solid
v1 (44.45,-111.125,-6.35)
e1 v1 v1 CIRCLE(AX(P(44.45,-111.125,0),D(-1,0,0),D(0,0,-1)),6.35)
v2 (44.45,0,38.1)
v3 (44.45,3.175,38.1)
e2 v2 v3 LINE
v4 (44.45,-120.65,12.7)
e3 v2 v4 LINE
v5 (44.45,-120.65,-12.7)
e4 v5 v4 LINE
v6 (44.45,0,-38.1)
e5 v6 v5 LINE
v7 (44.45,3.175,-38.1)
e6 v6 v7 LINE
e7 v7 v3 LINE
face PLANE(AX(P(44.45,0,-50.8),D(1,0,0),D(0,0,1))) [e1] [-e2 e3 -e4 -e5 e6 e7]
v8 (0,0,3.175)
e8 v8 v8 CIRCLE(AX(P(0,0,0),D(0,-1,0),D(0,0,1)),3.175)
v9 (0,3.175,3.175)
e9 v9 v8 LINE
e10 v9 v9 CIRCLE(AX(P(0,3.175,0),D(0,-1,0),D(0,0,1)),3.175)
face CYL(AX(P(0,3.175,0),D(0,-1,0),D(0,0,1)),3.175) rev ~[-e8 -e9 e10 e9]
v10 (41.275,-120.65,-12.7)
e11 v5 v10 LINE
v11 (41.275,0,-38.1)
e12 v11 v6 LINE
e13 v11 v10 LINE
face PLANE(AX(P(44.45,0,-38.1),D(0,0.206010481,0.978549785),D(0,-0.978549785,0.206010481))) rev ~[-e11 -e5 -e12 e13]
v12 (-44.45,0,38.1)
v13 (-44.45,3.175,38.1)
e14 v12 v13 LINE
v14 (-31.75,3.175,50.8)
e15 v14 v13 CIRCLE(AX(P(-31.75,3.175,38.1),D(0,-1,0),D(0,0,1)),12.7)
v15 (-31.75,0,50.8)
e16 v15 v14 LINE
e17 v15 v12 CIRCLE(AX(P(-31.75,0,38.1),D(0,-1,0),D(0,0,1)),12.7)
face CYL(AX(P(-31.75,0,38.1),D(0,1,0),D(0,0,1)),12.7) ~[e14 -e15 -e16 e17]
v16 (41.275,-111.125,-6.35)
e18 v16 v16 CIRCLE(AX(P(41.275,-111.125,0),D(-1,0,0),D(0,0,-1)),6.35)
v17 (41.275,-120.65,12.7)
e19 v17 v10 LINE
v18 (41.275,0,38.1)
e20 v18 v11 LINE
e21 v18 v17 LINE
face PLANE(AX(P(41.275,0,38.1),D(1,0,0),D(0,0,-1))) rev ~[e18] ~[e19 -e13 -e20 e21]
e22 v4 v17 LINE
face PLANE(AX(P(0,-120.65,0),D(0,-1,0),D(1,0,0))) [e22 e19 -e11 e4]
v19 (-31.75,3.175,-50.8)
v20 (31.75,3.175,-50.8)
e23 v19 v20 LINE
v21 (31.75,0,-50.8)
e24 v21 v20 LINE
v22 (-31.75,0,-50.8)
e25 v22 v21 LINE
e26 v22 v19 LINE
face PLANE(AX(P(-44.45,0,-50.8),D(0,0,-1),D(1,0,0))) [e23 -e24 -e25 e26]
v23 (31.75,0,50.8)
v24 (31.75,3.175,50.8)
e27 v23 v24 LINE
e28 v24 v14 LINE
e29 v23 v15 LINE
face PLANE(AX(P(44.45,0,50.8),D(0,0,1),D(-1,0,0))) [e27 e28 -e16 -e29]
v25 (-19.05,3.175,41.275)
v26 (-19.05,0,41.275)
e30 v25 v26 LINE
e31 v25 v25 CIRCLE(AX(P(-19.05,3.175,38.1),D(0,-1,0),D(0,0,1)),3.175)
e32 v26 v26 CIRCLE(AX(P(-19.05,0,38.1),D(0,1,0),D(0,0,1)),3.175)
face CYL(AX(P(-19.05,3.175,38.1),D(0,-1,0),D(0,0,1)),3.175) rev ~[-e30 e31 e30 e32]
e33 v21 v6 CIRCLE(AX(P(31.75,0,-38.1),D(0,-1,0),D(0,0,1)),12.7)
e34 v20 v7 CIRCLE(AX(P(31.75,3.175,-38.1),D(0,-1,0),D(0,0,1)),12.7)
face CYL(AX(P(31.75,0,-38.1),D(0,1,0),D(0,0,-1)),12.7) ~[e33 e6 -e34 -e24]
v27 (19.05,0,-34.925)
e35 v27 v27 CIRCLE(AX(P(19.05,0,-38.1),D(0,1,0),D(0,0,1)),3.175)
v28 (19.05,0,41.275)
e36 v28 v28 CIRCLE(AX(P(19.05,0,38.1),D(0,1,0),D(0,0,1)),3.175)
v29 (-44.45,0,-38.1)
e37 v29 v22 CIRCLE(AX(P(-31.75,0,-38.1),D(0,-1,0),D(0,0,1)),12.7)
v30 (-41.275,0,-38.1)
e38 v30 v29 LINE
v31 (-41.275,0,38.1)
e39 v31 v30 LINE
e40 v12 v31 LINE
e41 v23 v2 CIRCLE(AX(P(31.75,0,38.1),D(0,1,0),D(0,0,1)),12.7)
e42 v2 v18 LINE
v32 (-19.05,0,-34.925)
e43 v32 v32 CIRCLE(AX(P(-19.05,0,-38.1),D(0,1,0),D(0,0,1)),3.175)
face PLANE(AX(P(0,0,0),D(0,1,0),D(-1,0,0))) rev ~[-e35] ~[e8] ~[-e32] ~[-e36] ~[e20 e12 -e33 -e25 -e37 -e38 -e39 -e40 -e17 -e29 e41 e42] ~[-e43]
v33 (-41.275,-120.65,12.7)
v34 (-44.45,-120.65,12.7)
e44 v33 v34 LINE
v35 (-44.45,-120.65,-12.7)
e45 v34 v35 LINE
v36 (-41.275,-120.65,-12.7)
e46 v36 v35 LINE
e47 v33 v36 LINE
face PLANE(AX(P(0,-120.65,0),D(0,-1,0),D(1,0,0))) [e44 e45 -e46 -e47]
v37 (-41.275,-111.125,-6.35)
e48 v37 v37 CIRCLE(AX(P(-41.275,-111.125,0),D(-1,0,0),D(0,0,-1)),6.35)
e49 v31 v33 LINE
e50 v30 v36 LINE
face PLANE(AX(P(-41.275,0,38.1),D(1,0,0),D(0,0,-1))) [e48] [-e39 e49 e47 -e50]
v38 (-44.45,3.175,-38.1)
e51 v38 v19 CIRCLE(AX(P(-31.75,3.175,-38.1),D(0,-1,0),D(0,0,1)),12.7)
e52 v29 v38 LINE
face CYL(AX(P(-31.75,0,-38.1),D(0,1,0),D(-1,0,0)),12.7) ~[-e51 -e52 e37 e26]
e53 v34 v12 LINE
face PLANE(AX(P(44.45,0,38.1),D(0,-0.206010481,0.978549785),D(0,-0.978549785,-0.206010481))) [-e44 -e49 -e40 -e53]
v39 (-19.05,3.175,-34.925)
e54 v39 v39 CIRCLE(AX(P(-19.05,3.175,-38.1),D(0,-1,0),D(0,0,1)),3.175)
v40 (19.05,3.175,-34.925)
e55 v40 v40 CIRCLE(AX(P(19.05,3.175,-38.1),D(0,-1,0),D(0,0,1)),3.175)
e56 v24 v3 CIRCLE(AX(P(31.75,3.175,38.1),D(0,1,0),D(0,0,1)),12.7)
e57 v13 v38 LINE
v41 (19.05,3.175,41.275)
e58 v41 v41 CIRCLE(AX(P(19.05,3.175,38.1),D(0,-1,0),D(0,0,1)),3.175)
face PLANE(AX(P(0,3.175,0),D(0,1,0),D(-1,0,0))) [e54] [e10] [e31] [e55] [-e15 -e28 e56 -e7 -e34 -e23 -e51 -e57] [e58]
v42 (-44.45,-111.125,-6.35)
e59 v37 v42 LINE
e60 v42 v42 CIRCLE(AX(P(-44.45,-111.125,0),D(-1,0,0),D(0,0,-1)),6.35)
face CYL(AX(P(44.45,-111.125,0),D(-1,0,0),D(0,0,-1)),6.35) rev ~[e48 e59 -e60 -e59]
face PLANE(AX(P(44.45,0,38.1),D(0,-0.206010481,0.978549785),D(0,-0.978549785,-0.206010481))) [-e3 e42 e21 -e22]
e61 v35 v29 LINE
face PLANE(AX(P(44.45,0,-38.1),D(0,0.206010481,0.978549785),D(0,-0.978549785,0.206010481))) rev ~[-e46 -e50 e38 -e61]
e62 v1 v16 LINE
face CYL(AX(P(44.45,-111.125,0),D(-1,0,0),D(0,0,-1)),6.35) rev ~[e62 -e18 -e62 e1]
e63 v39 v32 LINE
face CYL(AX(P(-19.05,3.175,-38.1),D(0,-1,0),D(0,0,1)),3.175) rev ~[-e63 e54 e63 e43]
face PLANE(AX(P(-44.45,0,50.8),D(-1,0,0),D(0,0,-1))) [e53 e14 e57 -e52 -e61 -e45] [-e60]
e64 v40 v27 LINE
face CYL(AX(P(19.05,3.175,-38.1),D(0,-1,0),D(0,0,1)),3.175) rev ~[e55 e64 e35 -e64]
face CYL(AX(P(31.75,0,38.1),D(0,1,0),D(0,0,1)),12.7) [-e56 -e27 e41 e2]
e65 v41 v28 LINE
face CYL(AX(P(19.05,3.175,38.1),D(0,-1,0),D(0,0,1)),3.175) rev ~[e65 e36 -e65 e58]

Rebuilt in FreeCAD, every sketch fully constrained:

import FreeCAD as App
import Part
import Sketcher
from FreeCAD import Vector
Q = App.Units.Quantity


def edges_at(feature, points):
    """Names of the edges that pass closest to the given points."""
    edges = feature.Shape.Edges
    near = lambda p: min(range(len(edges)), key=lambda i: edges[i].distToShape(Part.Vertex(*p))[0])
    return sorted({f"Edge{near(p) + 1}" for p in points})

doc = App.newDocument("Part")
body = doc.addObject("PartDesign::Body", "Body")

sketch1 = body.newObject("Sketcher::SketchObject", "Sketch")
sketch1.AttachmentSupport = (doc.getObject("XZ_Plane"), [""])
sketch1.MapMode = "FlatFace"
sketch1.addGeometry([
    Part.LineSegment(Vector(-44, 51, 0), Vector(44, 51, 0)),
    Part.LineSegment(Vector(44, 51, 0), Vector(44, -51, 0)),
    Part.LineSegment(Vector(44, -51, 0), Vector(-44, -51, 0)),
    Part.LineSegment(Vector(-44, -51, 0), Vector(-44, 51, 0)),
], False)
sketch1.addConstraint([
    Sketcher.Constraint("Coincident", 0, 2, 1, 1),
    Sketcher.Constraint("Coincident", 1, 2, 2, 1),
    Sketcher.Constraint("Coincident", 2, 2, 3, 1),
    Sketcher.Constraint("Coincident", 3, 2, 0, 1),
    Sketcher.Constraint("Horizontal", 0),
    Sketcher.Constraint("Vertical", 1),
    Sketcher.Constraint("Horizontal", 2),
    Sketcher.Constraint("Vertical", 3),
    Sketcher.Constraint("Symmetric", 0, 2, 2, 2, -1, 1),
    Sketcher.Constraint("DistanceY", -1, 1, 0, 2, Q("2 in")),
    Sketcher.Constraint("DistanceX", -1, 1, 0, 2, Q("1.75 in")),
])
pad1 = body.newObject("PartDesign::Pad", "Pad")
pad1.Profile = sketch1
pad1.Length = Q("0.125 in")
pad1.Reversed = True
doc.recompute()

fillet = body.newObject("PartDesign::Fillet", "Fillet")
fillet.Base = (pad1, edges_at(pad1, [
    (44.45, 1.587, 50.8),
    (-44.45, 1.587, 50.8),
    (44.45, 1.587, -50.8),
    (-44.45, 1.587, -50.8),
]))
fillet.Radius = Q("0.5 in")

sketch2 = body.newObject("Sketcher::SketchObject", "Sketch001")
sketch2.AttachmentSupport = (doc.getObject("XZ_Plane"), [""])
sketch2.MapMode = "FlatFace"
sketch2.AttachmentOffset = App.Placement(Vector(0, 0, -0.125 * 25.4), App.Rotation())
sketch2.addGeometry([
    Part.Circle(Vector(-19.1, -38.1, 0), Vector(0, 0, 1), 3.2),
    Part.Circle(Vector(19.1, -38.1, 0), Vector(0, 0, 1), 3.2),
    Part.Circle(Vector(19.1, 38.1, 0), Vector(0, 0, 1), 3.2),
    Part.Circle(Vector(-19.1, 38.1, 0), Vector(0, 0, 1), 3.2),
    Part.Circle(Vector(0, 0, 0), Vector(0, 0, 1), 3.2),
], False)
sketch2.addConstraint([
    Sketcher.Constraint("Coincident", 4, 3, -1, 1),
    Sketcher.Constraint("Equal", 0, 1),
    Sketcher.Constraint("Equal", 1, 2),
    Sketcher.Constraint("Equal", 2, 3),
    Sketcher.Constraint("Equal", 3, 4),
    Sketcher.Constraint("Symmetric", 0, 3, 2, 3, -1, 1),
    Sketcher.Constraint("Symmetric", 1, 3, 3, 3, -1, 1),
    Sketcher.Constraint("Symmetric", 0, 3, 1, 3, -2),
    Sketcher.Constraint("Diameter", 0, Q("0.25 in")),
    Sketcher.Constraint("DistanceY", 1, 3, 2, 3, Q("3 in")),
    Sketcher.Constraint("DistanceX", 0, 3, 1, 3, Q("1.5 in")),
])
doc.recompute()
hole = body.newObject("PartDesign::Hole", "Hole")
hole.Profile = sketch2
hole.ThreadType = "None"
hole.Diameter = Q("0.25 in")
hole.DepthType = "ThroughAll"
hole.Reversed = True

sketch3 = body.newObject("Sketcher::SketchObject", "Sketch002")
sketch3.AttachmentSupport = (doc.getObject("XZ_Plane"), [""])
sketch3.MapMode = "FlatFace"
sketch3.addGeometry([
    Part.LineSegment(Vector(41.3, -38.1, 0), Vector(44.5, -38.1, 0)),
    Part.LineSegment(Vector(44.5, -38.1, 0), Vector(44.5, 38.1, 0)),
    Part.LineSegment(Vector(44.5, 38.1, 0), Vector(41.3, 38.1, 0)),
    Part.LineSegment(Vector(41.3, 38.1, 0), Vector(41.3, -38.1, 0)),
    Part.LineSegment(Vector(-41.3, 38.1, 0), Vector(-44.5, 38.1, 0)),
    Part.LineSegment(Vector(-44.5, 38.1, 0), Vector(-44.5, -38.1, 0)),
    Part.LineSegment(Vector(-44.5, -38.1, 0), Vector(-41.3, -38.1, 0)),
    Part.LineSegment(Vector(-41.3, -38.1, 0), Vector(-41.3, 38.1, 0)),
], False)
sketch3.addConstraint([
    Sketcher.Constraint("Coincident", 0, 2, 1, 1),
    Sketcher.Constraint("Coincident", 1, 2, 2, 1),
    Sketcher.Constraint("Coincident", 2, 2, 3, 1),
    Sketcher.Constraint("Coincident", 3, 2, 0, 1),
    Sketcher.Constraint("Coincident", 4, 2, 5, 1),
    Sketcher.Constraint("Coincident", 5, 2, 6, 1),
    Sketcher.Constraint("Coincident", 6, 2, 7, 1),
    Sketcher.Constraint("Coincident", 7, 2, 4, 1),
    Sketcher.Constraint("Horizontal", 0),
    Sketcher.Constraint("Vertical", 1),
    Sketcher.Constraint("Horizontal", 2),
    Sketcher.Constraint("Vertical", 3),
    Sketcher.Constraint("Horizontal", 4),
    Sketcher.Constraint("Vertical", 5),
    Sketcher.Constraint("Horizontal", 6),
    Sketcher.Constraint("Vertical", 7),
    Sketcher.Constraint("Symmetric", 0, 2, 4, 2, -1, 1),
    Sketcher.Constraint("Symmetric", 2, 2, 6, 2, -1, 1),
    Sketcher.Constraint("Horizontal", 2, 2, 4, 2),
    Sketcher.Constraint("DistanceY", 1, 1, 1, 2, Q("3 in")),
    Sketcher.Constraint("DistanceX", 0, 1, 0, 2, Q("0.125 in")),
    Sketcher.Constraint("DistanceX", 4, 2, 1, 2, Q("3.5 in")),
])
pad2 = body.newObject("PartDesign::Pad", "Pad001")
pad2.Profile = sketch3
pad2.Length = Q("4.75 in")

sketch4 = body.newObject("Sketcher::SketchObject", "Sketch003")
sketch4.AttachmentSupport = (doc.getObject("YZ_Plane"), [""])
sketch4.MapMode = "FlatFace"
sketch4.AttachmentOffset = App.Placement(Vector(0, 0, 1.75 * 25.4), App.Rotation())
sketch4.addGeometry([
    Part.LineSegment(Vector(-121, 13, 0), Vector(0, 38, 0)),
    Part.LineSegment(Vector(0, 38, 0), Vector(-121, 38, 0)),
    Part.LineSegment(Vector(-121, 38, 0), Vector(-121, 13, 0)),
    Part.LineSegment(Vector(-121, -38, 0), Vector(0, -38, 0)),
    Part.LineSegment(Vector(0, -38, 0), Vector(-121, -13, 0)),
    Part.LineSegment(Vector(-121, -13, 0), Vector(-121, -38, 0)),
], False)
sketch4.addConstraint([
    Sketcher.Constraint("Coincident", 0, 2, 1, 1),
    Sketcher.Constraint("Coincident", 1, 2, 2, 1),
    Sketcher.Constraint("Coincident", 2, 2, 0, 1),
    Sketcher.Constraint("Coincident", 3, 2, 4, 1),
    Sketcher.Constraint("Coincident", 4, 2, 5, 1),
    Sketcher.Constraint("Coincident", 5, 2, 3, 1),
    Sketcher.Constraint("Horizontal", 1),
    Sketcher.Constraint("Vertical", 2),
    Sketcher.Constraint("Horizontal", 3),
    Sketcher.Constraint("Vertical", 5),
    Sketcher.Constraint("Symmetric", 0, 2, 3, 2, -1, 1),
    Sketcher.Constraint("Symmetric", 2, 2, 4, 2, -1),
    Sketcher.Constraint("PointOnObject", 0, 2, -2),
    Sketcher.Constraint("DistanceY", 2, 2, 2, 1, Q("1 in")),
    Sketcher.Constraint("DistanceY", 3, 2, 0, 2, Q("3 in")),
    Sketcher.Constraint("DistanceX", 1, 2, 1, 1, Q("4.75 in")),
])
pocket1 = body.newObject("PartDesign::Pocket", "Pocket")
pocket1.Profile = sketch4
pocket1.Length = Q("5 in")

sketch5 = body.newObject("Sketcher::SketchObject", "Sketch004")
sketch5.AttachmentSupport = (doc.getObject("YZ_Plane"), [""])
sketch5.MapMode = "FlatFace"
sketch5.AttachmentOffset = App.Placement(Vector(0, 0, 1.75 * 25.4), App.Rotation())
sketch5.addGeometry(Part.Circle(Vector(-111, 0, 0), Vector(0, 0, 1), 6), False)
sketch5.addConstraint([
    Sketcher.Constraint("PointOnObject", 0, 3, -1),
    Sketcher.Constraint("Diameter", 0, Q("0.5 in")),
    Sketcher.Constraint("DistanceX", 0, 3, -1, 1, Q("4.375 in")),
])
doc.recompute()
hole2 = body.newObject("PartDesign::Hole", "Hole001")
hole2.Profile = sketch5
hole2.ThreadType = "None"
hole2.Diameter = Q("0.5 in")
hole2.DepthType = "ThroughAll"

doc.recompute()
